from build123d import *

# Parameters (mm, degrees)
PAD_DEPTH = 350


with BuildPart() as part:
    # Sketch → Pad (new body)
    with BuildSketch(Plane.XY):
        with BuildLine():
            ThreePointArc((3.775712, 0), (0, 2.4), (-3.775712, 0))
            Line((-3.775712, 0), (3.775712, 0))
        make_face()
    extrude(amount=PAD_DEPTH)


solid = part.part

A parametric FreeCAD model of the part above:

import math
import FreeCAD as App
import Part
import Sketcher
Q = App.Units.Quantity

doc = App.newDocument("Part")
body = doc.addObject("PartDesign::Body", "Body")

# Sketch on XY plane
sketch1 = doc.addObject("Sketcher::SketchObject", "Sketch")
body.addObject(sketch1)
sketch1.AttachmentSupport = (doc.XY_Plane, [""])
sketch1.MapMode = "FlatFace"
sketch1.addGeometry([
    Part.ArcOfCircle(Part.Circle(App.Vector(0, -1.77, 0), App.Vector(0, 0, 1), 4.17), math.radians(25.116517), math.radians(154.883483)),
    Part.LineSegment(App.Vector(-3.775712, 0, 0), App.Vector(3.775712, 0, 0)),
], False)
sketch1.addConstraint([
    Sketcher.Constraint("Coincident", 0, 1, 1, 2),
    Sketcher.Constraint("Coincident", 1, 1, 0, 2),
    Sketcher.Constraint("Horizontal", 1),
    Sketcher.Constraint("Symmetric", 0, 1, 1, 1, -1, 1),
    Sketcher.Constraint("Radius", 0, Q("4.17 mm")),
    Sketcher.Constraint("DistanceY", 0, 3, -1, 1, Q("1.77 mm")),
])
pad1 = doc.addObject("PartDesign::Pad", "Pad")
body.addObject(pad1)
pad1.Profile = sketch1
pad1.Length = 350

doc.recompute()
